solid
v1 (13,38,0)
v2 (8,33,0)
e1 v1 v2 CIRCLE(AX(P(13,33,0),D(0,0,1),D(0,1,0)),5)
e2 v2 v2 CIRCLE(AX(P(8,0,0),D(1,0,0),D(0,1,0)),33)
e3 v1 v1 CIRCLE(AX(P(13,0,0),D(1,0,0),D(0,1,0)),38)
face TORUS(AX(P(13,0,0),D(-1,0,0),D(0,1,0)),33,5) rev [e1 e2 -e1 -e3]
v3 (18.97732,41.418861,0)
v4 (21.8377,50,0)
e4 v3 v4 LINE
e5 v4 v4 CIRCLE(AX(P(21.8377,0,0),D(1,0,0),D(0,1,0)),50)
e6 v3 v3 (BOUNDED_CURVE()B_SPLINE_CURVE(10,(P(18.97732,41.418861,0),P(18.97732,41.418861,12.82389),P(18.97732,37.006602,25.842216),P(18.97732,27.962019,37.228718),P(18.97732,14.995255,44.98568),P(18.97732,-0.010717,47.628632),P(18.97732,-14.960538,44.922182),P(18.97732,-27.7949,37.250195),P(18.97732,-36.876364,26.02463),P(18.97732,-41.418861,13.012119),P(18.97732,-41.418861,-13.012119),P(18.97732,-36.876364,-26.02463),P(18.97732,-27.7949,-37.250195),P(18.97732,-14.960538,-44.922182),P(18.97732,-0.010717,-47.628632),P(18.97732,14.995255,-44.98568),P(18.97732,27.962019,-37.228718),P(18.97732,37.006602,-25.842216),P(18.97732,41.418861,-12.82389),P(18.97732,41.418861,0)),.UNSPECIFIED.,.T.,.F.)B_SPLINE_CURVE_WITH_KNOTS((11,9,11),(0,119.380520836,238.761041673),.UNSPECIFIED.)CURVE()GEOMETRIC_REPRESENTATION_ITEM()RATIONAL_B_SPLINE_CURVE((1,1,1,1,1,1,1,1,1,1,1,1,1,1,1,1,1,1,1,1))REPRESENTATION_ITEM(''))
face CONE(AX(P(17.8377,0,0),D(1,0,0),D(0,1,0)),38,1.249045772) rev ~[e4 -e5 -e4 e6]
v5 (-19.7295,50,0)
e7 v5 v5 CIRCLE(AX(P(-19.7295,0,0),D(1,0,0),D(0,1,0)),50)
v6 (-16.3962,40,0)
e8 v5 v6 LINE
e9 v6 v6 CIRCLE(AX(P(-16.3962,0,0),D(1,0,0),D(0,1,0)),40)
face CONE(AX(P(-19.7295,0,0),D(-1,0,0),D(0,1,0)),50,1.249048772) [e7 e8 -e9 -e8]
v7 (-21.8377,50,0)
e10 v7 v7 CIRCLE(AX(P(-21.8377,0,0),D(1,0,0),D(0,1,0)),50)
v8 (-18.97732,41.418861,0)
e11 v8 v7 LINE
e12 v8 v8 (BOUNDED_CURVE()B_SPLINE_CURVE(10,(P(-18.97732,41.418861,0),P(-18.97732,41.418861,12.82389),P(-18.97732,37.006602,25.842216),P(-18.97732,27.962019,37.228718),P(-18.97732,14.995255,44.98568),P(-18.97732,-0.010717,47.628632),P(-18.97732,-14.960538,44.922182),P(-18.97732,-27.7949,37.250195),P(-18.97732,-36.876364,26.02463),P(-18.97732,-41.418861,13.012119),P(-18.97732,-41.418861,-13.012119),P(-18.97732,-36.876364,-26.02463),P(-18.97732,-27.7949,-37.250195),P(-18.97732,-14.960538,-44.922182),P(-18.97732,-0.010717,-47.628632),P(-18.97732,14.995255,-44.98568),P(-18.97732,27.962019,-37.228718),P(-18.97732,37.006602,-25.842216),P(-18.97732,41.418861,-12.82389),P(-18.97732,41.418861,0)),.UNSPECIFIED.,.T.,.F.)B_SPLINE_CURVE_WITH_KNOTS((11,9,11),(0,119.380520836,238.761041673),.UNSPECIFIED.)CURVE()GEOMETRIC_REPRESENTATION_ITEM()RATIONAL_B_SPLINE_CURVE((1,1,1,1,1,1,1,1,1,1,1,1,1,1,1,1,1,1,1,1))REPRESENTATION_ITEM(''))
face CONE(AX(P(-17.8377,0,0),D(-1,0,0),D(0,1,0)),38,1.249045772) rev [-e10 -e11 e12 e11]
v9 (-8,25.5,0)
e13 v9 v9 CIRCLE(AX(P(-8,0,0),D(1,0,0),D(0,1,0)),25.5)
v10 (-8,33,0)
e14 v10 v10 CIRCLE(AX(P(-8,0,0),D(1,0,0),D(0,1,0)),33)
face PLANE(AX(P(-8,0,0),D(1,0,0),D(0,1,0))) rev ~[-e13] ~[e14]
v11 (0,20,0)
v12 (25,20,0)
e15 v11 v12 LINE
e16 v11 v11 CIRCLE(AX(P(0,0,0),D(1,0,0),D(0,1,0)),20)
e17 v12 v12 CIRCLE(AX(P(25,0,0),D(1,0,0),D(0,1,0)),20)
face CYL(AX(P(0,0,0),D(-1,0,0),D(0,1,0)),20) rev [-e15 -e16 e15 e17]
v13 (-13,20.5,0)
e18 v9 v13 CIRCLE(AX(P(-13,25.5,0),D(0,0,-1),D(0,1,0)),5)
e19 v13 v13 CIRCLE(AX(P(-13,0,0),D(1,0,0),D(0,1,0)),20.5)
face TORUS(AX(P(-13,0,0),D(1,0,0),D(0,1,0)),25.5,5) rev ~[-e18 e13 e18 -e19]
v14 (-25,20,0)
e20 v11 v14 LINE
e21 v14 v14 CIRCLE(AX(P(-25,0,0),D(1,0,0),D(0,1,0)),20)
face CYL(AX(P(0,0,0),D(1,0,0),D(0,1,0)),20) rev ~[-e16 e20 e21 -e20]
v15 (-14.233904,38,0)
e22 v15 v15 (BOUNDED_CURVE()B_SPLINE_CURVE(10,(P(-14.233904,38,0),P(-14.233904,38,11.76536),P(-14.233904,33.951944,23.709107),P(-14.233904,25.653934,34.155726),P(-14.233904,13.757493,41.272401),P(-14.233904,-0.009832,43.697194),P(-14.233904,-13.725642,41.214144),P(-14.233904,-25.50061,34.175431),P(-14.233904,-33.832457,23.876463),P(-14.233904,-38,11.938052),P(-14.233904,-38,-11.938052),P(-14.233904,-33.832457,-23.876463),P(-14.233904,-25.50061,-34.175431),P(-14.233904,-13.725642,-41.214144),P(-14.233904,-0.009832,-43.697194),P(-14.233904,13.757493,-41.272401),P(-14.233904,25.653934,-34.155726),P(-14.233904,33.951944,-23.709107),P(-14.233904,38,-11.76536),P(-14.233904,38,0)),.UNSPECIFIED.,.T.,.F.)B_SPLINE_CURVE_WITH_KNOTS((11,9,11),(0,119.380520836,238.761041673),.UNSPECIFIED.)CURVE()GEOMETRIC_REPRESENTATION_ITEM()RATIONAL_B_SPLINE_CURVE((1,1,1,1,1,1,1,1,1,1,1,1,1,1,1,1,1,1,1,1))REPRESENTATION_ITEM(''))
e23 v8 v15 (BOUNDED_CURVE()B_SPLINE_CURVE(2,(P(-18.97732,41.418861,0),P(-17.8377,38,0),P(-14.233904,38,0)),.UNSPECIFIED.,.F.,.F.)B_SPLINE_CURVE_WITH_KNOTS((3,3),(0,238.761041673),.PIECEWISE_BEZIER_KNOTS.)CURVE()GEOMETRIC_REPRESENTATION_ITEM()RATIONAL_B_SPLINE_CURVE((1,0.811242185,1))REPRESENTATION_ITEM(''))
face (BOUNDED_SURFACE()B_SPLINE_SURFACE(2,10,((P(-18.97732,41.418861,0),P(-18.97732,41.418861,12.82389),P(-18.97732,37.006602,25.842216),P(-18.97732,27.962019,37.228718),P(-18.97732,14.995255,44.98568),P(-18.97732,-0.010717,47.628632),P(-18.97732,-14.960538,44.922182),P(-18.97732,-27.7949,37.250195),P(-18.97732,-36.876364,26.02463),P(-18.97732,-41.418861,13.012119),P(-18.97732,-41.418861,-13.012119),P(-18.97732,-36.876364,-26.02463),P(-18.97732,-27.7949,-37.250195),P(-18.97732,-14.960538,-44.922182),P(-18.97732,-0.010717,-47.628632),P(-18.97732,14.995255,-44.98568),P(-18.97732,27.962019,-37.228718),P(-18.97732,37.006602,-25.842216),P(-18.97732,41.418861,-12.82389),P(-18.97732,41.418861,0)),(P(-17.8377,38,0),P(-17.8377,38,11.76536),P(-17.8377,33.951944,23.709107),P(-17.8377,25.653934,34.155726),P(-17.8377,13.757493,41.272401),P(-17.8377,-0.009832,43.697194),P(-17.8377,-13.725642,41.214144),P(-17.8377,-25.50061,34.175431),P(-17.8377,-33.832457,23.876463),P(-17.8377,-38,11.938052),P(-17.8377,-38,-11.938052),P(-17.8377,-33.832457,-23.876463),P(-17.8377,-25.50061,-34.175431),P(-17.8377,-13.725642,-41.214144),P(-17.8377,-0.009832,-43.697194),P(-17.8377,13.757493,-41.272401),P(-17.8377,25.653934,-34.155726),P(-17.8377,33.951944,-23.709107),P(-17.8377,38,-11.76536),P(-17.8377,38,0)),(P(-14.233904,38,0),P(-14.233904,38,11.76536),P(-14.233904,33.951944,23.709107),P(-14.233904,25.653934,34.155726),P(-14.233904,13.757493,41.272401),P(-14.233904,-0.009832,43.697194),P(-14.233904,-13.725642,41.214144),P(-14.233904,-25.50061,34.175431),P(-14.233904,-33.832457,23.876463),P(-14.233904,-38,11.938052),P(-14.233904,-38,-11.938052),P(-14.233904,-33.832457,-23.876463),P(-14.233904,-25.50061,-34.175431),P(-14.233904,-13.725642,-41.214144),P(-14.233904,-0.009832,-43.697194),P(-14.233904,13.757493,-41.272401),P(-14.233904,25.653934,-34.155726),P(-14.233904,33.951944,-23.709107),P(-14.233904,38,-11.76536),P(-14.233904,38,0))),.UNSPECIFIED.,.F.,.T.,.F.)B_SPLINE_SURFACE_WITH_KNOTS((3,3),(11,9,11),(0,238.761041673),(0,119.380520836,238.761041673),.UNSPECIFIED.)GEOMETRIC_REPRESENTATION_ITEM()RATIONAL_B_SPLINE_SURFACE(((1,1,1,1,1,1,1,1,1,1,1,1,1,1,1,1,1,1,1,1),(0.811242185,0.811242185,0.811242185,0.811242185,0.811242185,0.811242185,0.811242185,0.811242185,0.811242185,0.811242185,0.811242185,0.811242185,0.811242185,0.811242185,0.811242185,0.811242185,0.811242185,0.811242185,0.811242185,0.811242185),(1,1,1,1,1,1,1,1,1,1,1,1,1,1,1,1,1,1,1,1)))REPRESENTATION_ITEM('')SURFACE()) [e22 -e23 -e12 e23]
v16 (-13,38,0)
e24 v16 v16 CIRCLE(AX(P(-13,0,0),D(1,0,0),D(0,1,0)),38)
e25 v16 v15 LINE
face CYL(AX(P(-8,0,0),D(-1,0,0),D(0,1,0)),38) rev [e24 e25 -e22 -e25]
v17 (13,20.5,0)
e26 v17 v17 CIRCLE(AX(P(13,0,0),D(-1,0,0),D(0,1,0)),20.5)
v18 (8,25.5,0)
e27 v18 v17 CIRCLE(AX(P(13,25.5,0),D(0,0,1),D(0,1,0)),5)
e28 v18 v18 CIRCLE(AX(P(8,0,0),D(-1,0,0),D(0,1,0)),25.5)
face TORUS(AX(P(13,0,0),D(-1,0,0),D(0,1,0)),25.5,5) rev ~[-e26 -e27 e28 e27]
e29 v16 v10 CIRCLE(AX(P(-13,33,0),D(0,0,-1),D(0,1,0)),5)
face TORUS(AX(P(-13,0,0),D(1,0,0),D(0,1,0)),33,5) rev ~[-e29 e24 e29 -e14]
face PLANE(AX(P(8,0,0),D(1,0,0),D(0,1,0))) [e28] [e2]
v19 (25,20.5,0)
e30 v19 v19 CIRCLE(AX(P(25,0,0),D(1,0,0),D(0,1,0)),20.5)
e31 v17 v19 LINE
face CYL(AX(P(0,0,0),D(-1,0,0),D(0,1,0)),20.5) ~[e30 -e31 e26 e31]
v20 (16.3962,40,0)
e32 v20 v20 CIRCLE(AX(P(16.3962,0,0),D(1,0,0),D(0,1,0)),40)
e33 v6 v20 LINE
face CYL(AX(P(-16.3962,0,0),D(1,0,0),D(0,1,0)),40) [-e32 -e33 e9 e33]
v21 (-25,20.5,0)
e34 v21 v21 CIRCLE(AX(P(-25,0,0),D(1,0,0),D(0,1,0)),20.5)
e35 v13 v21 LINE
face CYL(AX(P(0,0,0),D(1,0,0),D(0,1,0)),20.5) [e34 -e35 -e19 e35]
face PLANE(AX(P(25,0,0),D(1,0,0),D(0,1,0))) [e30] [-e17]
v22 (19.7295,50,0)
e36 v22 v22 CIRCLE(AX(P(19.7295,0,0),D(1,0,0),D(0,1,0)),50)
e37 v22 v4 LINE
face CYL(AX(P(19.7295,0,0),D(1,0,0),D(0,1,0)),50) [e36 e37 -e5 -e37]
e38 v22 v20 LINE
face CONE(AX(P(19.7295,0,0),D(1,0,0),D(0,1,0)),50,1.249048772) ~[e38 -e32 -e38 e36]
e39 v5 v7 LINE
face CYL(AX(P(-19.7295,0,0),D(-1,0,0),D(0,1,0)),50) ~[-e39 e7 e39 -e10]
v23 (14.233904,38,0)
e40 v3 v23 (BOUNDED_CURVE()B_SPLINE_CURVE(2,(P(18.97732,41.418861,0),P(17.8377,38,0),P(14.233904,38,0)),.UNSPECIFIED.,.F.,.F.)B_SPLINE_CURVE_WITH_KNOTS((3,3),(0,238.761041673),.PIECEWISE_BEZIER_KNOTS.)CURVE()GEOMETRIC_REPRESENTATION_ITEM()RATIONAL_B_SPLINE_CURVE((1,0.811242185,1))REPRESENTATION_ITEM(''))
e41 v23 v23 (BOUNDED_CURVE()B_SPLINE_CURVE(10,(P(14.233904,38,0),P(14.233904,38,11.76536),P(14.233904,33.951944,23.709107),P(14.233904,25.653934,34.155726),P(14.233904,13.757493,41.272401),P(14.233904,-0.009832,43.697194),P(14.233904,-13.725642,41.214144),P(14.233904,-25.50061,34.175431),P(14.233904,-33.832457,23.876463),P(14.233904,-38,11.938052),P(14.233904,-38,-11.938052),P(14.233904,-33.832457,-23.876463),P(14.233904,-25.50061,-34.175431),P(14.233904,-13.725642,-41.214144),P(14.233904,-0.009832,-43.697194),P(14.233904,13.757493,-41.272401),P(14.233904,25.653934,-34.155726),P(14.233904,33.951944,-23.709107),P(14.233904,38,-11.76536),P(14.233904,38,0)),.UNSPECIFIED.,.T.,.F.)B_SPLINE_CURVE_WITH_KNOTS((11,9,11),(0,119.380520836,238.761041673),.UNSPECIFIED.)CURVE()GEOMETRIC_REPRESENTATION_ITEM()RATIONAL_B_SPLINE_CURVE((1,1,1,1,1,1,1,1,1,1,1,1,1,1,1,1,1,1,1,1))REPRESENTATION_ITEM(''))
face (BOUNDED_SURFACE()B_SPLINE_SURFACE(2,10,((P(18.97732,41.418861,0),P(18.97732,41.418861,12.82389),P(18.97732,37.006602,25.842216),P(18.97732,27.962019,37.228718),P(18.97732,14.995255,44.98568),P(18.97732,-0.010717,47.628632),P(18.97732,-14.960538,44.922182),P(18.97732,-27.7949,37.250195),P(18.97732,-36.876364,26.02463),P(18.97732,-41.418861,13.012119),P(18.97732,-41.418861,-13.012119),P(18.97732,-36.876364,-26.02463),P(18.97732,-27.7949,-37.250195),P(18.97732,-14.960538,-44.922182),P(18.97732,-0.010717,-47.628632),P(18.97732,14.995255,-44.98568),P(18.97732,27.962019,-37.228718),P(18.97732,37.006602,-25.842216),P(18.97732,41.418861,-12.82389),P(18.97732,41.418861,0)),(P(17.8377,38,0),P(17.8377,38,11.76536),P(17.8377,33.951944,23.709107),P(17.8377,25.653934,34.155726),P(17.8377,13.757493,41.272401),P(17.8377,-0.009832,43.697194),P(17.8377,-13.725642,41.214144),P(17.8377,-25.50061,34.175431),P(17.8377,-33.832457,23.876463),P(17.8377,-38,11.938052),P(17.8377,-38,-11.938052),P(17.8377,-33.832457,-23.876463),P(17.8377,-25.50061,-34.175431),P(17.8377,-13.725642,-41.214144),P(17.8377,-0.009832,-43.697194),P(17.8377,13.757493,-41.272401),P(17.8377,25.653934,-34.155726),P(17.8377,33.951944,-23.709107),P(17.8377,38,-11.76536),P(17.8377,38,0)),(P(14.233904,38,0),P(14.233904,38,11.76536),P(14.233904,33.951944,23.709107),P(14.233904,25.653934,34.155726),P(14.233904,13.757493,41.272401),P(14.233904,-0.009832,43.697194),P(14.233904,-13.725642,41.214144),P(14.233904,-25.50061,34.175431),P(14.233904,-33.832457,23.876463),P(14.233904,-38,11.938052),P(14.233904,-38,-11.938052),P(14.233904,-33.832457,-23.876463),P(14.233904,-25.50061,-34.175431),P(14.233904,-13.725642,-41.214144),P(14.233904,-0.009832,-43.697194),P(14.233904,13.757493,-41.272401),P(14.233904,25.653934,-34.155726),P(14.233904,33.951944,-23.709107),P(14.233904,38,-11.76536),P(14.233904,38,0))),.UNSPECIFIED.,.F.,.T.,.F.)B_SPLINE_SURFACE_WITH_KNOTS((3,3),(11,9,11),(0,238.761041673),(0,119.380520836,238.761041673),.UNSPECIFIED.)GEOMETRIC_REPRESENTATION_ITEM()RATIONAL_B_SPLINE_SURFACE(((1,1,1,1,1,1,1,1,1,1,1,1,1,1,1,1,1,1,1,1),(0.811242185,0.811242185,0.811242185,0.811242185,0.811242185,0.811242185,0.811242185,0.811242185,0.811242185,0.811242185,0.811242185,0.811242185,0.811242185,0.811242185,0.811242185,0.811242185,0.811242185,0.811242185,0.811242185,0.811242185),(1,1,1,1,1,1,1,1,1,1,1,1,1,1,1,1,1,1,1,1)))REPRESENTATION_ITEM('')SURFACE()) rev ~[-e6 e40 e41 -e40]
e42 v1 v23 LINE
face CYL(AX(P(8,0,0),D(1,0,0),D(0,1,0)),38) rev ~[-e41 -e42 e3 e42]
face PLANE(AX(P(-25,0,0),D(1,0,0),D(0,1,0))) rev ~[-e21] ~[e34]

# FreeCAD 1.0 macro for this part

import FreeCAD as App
import Part
import Sketcher
from FreeCAD import Vector
Q = App.Units.Quantity


def edges_at(feature, points):
    """Names of the edges that pass closest to the given points."""
    edges = feature.Shape.Edges
    near = lambda p: min(range(len(edges)), key=lambda i: edges[i].distToShape(Part.Vertex(*p))[0])
    return sorted({f"Edge{near(p) + 1}" for p in points})

doc = App.newDocument("Part")
body = doc.addObject("PartDesign::Body", "Body")

# Sketch on XY plane
sketch1 = body.newObject("Sketcher::SketchObject", "Sketch")
sketch1.AttachmentSupport = (doc.getObject("XY_Plane"), [""])
sketch1.MapMode = "FlatFace"
sketch1.addGeometry([
    Part.LineSegment(Vector(-17.8377, 38, 0), Vector(-8, 38, 0)),  # 0
    Part.LineSegment(Vector(-8, 38, 0), Vector(-8, 0, 0)),  # 1
    Part.LineSegment(Vector(-8, 0, 0), Vector(8, 0, 0)),  # 2
    Part.LineSegment(Vector(8, 0, 0), Vector(8, 38, 0)),  # 3
    Part.LineSegment(Vector(8, 38, 0), Vector(17.8377, 38, 0)),  # 4
    Part.LineSegment(Vector(17.8377, 38, 0), Vector(21.8377, 50, 0)),  # 5
    Part.LineSegment(Vector(21.8377, 50, 0), Vector(19.7295, 50, 0)),  # 6
    Part.LineSegment(Vector(19.7295, 50, 0), Vector(16.3962, 40, 0)),  # 7
    Part.LineSegment(Vector(16.3962, 40, 0), Vector(-16.3962, 40, 0)),  # 8
    Part.LineSegment(Vector(-16.3962, 40, 0), Vector(-19.7295, 50, 0)),  # 9
    Part.LineSegment(Vector(-19.7295, 50, 0), Vector(-21.8377, 50, 0)),  # 10
    Part.LineSegment(Vector(-21.8377, 50, 0), Vector(-17.8377, 38, 0)),  # 11
], False)
sketch1.addConstraint([
    Sketcher.Constraint("Coincident", 0, 2, 1, 1),
    Sketcher.Constraint("Coincident", 1, 2, 2, 1),
    Sketcher.Constraint("Coincident", 2, 2, 3, 1),
    Sketcher.Constraint("Coincident", 3, 2, 4, 1),
    Sketcher.Constraint("Coincident", 4, 2, 5, 1),
    Sketcher.Constraint("Coincident", 5, 2, 6, 1),
    Sketcher.Constraint("Coincident", 6, 2, 7, 1),
    Sketcher.Constraint("Coincident", 7, 2, 8, 1),
    Sketcher.Constraint("Coincident", 8, 2, 9, 1),
    Sketcher.Constraint("Coincident", 9, 2, 10, 1),
    Sketcher.Constraint("Coincident", 10, 2, 11, 1),
    Sketcher.Constraint("Coincident", 11, 2, 0, 1),
    Sketcher.Constraint("Horizontal", 0),
    Sketcher.Constraint("Vertical", 1),
    Sketcher.Constraint("Horizontal", 2),
    Sketcher.Constraint("Vertical", 3),
    Sketcher.Constraint("Horizontal", 4),
    Sketcher.Constraint("Horizontal", 6),
    Sketcher.Constraint("Horizontal", 8),
    Sketcher.Constraint("Horizontal", 10),
    Sketcher.Constraint("Symmetric", 1, 2, 2, 2, -1, 1),
    Sketcher.Constraint("Symmetric", 6, 2, 9, 2, -2),
    Sketcher.Constraint("Symmetric", 4, 2, 11, 2, -2),
    Sketcher.Constraint("Parallel", 5, 7),
    Sketcher.Constraint("Parallel", 9, 11),
    Sketcher.Constraint("Equal", 6, 10),
    Sketcher.Constraint("DistanceY", 4, 2, 7, 2, Q("2 mm")),
    Sketcher.Constraint("DistanceX", 2, 1, 2, 2, Q("16 mm")),
    Sketcher.Constraint("DistanceY", 1, 2, 1, 1, Q("38 mm")),
    Sketcher.Constraint("DistanceY", -1, 1, 5, 2, Q("50 mm")),
    Sketcher.Constraint("DistanceX", 4, 2, 5, 2, Q("4 mm")),
    Sketcher.Constraint("DistanceX", 0, 1, 0, 2, Q("9.8377 mm")),
    Sketcher.Constraint("DistanceX", 6, 2, 6, 1, Q("2.1082 mm")),
])
revolution = body.newObject("PartDesign::Revolution", "Revolution")
revolution.Profile = sketch1
revolution.ReferenceAxis = (sketch1, ["H_Axis"])
revolution.Angle = 360
doc.recompute()

fillet = body.newObject("PartDesign::Fillet", "Fillet")
fillet.Base = (revolution, edges_at(revolution, [(17.838, -38, 0)]))
fillet.Radius = 5
doc.recompute()

fillet2 = body.newObject("PartDesign::Fillet", "Fillet001")
fillet2.Base = (fillet, edges_at(fillet, [(-17.838, -38, 0)]))
fillet2.Radius = 5

# Sketch on YZ plane
sketch2 = body.newObject("Sketcher::SketchObject", "Sketch001")
sketch2.AttachmentSupport = (doc.getObject("YZ_Plane"), [""])
sketch2.MapMode = "FlatFace"
sketch2.addGeometry(Part.Circle(Vector(0, 0, 0), Vector(0, 0, 1), 20.5), False)
sketch2.addConstraint([
    Sketcher.Constraint("Coincident", 0, 3, -1, 1),
    Sketcher.Constraint("Diameter", 0, Q("41 mm")),
])
pad1 = body.newObject("PartDesign::Pad", "Pad")
pad1.Profile = sketch2
pad1.Length = 50
pad1.Midplane = True
doc.recompute()

fillet3 = body.newObject("PartDesign::Fillet", "Fillet002")
fillet3.Base = (pad1, edges_at(pad1, [
    (-8, -38, 0),
    (-8, -20.5, 0),
    (8, -38, 0),
    (8, -20.5, 0),
]))
fillet3.Radius = 5

# Sketch on YZ plane
sketch3 = body.newObject("Sketcher::SketchObject", "Sketch002")
sketch3.AttachmentSupport = (doc.getObject("YZ_Plane"), [""])
sketch3.MapMode = "FlatFace"
sketch3.addGeometry(Part.Circle(Vector(0, 0, 0), Vector(0, 0, 1), 20), False)
sketch3.addConstraint([
    Sketcher.Constraint("Coincident", 0, 3, -1, 1),
    Sketcher.Constraint("Diameter", 0, Q("40 mm")),
])
pocket1 = body.newObject("PartDesign::Pocket", "Pocket")
pocket1.Profile = sketch3
pocket1.Length = 50
pocket1.Midplane = True

doc.recompute()
